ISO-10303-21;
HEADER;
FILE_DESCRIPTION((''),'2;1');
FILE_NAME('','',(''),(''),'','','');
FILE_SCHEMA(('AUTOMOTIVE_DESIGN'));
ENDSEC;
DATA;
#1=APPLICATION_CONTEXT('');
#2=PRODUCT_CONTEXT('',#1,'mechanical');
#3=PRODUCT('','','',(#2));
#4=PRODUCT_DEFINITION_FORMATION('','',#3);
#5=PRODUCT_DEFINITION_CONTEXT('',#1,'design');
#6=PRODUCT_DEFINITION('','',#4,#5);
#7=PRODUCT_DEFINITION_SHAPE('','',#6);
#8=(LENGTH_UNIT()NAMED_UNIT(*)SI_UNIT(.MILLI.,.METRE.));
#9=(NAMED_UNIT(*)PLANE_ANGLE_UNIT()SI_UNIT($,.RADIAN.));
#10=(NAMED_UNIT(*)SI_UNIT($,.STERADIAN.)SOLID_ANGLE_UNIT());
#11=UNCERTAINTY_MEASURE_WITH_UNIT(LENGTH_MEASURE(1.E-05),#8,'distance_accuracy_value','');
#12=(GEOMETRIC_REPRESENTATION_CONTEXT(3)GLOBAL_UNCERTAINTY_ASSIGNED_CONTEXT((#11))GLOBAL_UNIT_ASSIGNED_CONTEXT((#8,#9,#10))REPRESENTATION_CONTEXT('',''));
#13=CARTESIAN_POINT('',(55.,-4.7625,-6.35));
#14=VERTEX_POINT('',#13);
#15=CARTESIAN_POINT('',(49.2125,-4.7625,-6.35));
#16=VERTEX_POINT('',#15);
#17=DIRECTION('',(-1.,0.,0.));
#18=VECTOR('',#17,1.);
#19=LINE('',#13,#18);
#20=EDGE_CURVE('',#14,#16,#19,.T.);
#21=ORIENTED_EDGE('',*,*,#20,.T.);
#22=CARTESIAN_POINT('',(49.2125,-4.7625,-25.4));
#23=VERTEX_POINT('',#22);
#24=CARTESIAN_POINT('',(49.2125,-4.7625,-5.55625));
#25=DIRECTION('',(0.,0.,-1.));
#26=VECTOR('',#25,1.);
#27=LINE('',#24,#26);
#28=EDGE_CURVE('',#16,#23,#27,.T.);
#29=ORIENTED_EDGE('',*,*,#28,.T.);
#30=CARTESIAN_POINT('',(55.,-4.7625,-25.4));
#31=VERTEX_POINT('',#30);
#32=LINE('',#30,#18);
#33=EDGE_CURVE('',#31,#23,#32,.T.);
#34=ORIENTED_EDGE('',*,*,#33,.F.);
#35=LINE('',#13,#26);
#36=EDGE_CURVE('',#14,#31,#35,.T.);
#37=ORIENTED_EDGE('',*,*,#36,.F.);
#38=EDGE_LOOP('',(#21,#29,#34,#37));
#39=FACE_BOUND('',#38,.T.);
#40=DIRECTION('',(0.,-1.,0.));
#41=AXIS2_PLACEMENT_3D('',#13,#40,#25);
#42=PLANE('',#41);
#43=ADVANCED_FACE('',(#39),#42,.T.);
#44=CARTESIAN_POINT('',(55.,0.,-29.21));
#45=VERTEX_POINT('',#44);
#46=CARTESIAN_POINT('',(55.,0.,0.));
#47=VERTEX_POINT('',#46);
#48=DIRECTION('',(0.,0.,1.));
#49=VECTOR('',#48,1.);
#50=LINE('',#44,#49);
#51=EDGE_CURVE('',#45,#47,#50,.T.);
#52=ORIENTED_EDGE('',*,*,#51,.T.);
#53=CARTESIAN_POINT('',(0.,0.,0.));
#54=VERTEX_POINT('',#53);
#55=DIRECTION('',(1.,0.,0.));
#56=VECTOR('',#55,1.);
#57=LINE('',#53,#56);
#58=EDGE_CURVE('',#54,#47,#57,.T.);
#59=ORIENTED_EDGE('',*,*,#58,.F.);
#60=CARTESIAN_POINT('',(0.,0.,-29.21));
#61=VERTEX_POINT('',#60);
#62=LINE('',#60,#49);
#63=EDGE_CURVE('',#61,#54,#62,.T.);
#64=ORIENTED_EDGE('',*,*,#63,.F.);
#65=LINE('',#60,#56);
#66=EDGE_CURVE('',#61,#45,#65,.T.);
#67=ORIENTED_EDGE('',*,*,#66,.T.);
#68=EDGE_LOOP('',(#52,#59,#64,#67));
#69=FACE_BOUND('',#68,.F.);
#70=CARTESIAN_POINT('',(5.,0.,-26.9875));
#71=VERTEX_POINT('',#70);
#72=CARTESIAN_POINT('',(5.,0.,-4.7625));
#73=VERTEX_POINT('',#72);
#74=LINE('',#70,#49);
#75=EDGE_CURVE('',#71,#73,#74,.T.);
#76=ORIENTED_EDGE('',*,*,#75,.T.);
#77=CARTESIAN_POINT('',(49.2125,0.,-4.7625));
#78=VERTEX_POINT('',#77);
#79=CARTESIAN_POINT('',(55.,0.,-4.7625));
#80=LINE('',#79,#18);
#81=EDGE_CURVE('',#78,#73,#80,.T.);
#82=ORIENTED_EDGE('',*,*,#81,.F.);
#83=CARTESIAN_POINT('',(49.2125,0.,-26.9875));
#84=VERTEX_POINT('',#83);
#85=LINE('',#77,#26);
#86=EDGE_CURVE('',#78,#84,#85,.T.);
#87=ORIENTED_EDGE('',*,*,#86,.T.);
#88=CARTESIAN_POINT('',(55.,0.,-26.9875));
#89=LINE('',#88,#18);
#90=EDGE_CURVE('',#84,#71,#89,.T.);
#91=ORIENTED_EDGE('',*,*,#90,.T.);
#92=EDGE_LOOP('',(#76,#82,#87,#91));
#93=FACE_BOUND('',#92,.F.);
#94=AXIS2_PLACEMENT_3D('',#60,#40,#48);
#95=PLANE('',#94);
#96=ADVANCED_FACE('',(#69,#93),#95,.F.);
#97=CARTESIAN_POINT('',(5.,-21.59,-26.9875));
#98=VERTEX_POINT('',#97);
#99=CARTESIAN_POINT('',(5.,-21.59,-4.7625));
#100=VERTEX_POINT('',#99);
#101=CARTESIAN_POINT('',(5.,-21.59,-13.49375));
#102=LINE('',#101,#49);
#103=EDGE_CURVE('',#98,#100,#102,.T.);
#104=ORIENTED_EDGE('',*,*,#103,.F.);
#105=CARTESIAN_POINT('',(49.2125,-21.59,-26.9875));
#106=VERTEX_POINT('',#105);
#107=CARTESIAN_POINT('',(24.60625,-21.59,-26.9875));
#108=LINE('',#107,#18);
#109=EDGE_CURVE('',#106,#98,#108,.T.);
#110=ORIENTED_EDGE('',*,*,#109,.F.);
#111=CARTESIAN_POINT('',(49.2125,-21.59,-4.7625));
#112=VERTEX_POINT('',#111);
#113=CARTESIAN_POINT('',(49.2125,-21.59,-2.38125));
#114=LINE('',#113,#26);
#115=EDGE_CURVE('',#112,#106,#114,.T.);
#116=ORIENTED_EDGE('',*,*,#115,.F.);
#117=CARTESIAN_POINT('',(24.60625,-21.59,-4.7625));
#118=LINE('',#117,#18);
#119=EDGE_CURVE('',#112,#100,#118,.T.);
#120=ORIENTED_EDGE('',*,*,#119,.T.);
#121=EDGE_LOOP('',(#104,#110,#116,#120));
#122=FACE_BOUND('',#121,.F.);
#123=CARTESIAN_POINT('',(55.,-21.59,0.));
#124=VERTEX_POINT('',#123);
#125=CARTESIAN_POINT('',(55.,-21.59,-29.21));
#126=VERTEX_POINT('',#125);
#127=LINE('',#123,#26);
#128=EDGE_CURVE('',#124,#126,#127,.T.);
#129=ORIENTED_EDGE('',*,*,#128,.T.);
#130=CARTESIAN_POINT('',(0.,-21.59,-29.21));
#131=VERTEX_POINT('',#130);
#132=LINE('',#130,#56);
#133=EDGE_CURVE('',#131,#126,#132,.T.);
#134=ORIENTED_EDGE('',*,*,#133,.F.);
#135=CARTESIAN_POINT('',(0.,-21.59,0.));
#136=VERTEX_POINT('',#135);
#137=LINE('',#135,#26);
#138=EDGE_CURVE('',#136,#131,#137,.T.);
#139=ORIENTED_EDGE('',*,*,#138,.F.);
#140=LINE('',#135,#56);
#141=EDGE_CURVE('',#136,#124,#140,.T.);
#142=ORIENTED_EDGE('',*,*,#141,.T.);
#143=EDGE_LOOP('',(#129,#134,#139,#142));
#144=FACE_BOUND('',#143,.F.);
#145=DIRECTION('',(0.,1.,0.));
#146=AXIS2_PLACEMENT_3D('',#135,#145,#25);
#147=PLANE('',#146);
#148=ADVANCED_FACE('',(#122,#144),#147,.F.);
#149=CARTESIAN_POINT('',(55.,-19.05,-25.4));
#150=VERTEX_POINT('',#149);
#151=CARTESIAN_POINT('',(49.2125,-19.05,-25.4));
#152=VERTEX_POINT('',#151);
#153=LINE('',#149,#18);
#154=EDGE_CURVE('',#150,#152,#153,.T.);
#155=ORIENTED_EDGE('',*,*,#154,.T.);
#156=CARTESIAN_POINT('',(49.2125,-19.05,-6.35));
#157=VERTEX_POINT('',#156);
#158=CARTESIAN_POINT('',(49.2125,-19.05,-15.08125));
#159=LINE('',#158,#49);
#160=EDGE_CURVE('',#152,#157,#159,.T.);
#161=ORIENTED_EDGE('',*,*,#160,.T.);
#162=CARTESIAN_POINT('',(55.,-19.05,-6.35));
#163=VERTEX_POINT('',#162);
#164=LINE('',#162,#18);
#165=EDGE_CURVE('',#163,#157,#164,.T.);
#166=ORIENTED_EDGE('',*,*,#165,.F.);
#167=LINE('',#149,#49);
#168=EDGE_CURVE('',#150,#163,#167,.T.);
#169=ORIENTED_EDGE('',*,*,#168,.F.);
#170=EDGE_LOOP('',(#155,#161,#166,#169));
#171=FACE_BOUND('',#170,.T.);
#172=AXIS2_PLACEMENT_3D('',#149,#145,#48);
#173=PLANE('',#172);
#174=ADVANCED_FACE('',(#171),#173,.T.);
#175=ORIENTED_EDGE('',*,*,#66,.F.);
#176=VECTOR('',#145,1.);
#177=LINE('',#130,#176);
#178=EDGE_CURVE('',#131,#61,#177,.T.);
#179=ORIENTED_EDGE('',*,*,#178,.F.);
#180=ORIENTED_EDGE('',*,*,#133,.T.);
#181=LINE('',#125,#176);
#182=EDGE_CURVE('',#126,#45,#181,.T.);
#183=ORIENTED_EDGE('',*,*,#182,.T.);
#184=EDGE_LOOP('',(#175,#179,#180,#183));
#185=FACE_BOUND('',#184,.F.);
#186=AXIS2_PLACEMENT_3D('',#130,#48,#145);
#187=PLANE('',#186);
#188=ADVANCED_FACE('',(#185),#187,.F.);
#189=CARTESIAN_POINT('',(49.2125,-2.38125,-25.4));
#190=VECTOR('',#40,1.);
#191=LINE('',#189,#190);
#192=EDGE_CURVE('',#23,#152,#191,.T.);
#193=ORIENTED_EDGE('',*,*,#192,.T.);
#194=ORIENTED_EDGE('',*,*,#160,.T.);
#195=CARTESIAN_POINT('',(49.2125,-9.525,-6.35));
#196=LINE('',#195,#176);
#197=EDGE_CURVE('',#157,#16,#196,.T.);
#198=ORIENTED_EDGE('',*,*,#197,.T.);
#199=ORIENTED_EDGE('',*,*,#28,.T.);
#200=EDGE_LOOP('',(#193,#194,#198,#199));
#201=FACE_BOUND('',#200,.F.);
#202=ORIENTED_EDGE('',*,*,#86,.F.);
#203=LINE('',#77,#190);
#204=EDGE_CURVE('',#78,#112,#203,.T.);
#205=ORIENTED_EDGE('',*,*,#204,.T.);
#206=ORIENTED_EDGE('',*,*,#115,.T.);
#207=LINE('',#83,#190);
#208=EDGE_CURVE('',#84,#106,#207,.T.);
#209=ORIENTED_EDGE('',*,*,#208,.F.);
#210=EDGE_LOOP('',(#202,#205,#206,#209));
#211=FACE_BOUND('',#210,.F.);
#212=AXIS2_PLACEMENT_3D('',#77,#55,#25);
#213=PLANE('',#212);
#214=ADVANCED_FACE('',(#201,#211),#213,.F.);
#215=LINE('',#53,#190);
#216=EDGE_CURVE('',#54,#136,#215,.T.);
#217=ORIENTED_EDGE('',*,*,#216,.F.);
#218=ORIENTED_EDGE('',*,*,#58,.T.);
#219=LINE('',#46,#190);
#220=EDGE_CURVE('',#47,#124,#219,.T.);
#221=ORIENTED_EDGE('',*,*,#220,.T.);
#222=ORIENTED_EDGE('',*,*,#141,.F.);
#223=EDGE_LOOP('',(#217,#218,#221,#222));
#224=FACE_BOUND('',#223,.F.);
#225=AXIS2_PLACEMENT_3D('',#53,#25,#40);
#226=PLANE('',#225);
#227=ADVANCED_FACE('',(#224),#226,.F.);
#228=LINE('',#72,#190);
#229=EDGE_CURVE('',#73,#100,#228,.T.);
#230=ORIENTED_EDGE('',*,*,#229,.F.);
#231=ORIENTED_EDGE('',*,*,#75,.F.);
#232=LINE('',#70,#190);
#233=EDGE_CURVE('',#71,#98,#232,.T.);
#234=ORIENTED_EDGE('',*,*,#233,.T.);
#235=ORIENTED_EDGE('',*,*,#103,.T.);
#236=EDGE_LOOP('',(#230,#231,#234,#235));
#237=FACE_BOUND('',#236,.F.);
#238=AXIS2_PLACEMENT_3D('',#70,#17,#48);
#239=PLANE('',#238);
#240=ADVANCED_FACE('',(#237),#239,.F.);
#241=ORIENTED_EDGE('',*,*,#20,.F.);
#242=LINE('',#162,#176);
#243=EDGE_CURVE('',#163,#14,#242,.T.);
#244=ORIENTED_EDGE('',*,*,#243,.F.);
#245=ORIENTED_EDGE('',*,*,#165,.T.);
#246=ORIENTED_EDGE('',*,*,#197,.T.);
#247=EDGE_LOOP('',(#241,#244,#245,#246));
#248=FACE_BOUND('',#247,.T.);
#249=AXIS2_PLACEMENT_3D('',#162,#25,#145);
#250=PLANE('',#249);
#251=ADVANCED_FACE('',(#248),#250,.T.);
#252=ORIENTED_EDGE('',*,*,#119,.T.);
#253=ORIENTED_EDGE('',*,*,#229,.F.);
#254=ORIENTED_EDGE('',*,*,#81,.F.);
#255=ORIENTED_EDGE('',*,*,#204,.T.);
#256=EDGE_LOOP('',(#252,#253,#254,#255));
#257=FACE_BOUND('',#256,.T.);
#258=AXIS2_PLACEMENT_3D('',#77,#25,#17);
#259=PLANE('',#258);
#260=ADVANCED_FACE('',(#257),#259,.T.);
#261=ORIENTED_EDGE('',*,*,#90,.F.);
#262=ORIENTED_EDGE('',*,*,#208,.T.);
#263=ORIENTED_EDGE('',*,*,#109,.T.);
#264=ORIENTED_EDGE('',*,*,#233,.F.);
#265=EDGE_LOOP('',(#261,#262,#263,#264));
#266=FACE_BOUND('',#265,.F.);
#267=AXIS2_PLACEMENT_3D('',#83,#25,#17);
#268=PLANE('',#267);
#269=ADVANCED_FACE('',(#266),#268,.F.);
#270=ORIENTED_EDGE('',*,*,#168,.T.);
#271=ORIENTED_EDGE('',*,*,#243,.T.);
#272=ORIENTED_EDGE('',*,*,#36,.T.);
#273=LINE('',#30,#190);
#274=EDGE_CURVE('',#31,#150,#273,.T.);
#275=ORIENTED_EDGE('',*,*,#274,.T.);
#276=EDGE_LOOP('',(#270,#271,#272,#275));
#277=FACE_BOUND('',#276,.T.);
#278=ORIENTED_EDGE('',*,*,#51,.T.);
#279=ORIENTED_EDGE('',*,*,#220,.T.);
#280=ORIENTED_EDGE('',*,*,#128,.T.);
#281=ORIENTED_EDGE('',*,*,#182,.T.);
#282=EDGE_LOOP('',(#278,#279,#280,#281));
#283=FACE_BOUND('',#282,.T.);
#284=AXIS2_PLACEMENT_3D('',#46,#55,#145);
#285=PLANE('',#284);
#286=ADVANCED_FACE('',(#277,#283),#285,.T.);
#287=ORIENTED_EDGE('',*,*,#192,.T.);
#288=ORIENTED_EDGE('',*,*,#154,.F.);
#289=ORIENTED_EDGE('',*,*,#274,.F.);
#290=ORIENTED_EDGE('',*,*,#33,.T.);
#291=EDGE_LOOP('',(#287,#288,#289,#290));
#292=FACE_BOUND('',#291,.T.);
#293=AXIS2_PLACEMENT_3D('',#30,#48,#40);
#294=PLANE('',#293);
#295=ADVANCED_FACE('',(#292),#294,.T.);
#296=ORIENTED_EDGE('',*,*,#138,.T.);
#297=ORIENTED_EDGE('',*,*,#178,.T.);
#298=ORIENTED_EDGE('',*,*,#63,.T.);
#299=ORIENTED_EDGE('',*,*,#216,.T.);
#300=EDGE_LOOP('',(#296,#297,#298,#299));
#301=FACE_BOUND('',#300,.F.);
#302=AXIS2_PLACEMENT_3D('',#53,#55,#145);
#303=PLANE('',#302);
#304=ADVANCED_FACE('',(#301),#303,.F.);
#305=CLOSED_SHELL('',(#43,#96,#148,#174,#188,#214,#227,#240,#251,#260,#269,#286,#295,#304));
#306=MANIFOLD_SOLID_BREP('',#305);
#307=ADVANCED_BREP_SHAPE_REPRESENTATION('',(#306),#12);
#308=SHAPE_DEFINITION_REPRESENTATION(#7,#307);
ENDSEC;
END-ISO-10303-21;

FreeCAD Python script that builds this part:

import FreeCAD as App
import Part
import Sketcher
from FreeCAD import Vector
Q = App.Units.Quantity

doc = App.newDocument("Part")
params = doc.addObject("Spreadsheet::Sheet", "Params")
for row, (alias, value) in enumerate([
    ("sketch1_width", "0.85 in"),
    ("sketch1_height", "1.15 in"),
    ("pad1_length", "55 mm"),
    ("sketch2_height", "0.875 in"),
    ("pocket1_length", "25 mm"),
    ("sketch3_height", "0.75 in"),
    ("sketch3_width", "0.5625 in"),
    ("pocket2_length", "25 mm"),
], start=1):
    params.set(f"A{row}", alias)
    params.set(f"B{row}", "=" + value)
    params.setAlias(f"B{row}", alias)

body = doc.addObject("PartDesign::Body", "Body")

sketch1 = body.newObject("Sketcher::SketchObject", "Sketch")
sketch1.AttachmentSupport = (doc.getObject("YZ_Plane"), [""])
sketch1.MapMode = "FlatFace"
sketch1.addGeometry([
    Part.LineSegment(Vector(0, -29, 0), Vector(0, 0, 0)),
    Part.LineSegment(Vector(0, 0, 0), Vector(-22, 0, 0)),
    Part.LineSegment(Vector(-22, 0, 0), Vector(-22, -29, 0)),
    Part.LineSegment(Vector(-22, -29, 0), Vector(0, -29, 0)),
], False)
sketch1.addConstraint([
    Sketcher.Constraint("Coincident", 0, 2, 1, 1),
    Sketcher.Constraint("Coincident", 1, 2, 2, 1),
    Sketcher.Constraint("Coincident", 2, 2, 3, 1),
    Sketcher.Constraint("Coincident", 3, 2, 0, 1),
    Sketcher.Constraint("Vertical", 0),
    Sketcher.Constraint("Horizontal", 1),
    Sketcher.Constraint("Vertical", 2),
    Sketcher.Constraint("Horizontal", 3),
    Sketcher.Constraint("Coincident", 0, 2, -1, 1),
    Sketcher.Constraint("DistanceX", 1, 2, 1, 1, Q("0.85 in")),
    Sketcher.Constraint("DistanceY", 0, 1, 0, 2, Q("1.15 in")),
])
sketch1.setExpression("Constraints[9]", "Params.sketch1_width")
sketch1.setExpression("Constraints[10]", "Params.sketch1_height")
pad1 = body.newObject("PartDesign::Pad", "Pad")
pad1.Profile = sketch1
pad1.setExpression("Length", "Params.pad1_length")

sketch2 = body.newObject("Sketcher::SketchObject", "Sketch001")
sketch2.AttachmentSupport = (doc.getObject("XZ_Plane"), [""])
sketch2.MapMode = "FlatFace"
sketch2.addGeometry([
    Part.LineSegment(Vector(49, -5, 0), Vector(49, -27, 0)),
    Part.LineSegment(Vector(49, -27, 0), Vector(5, -27, 0)),
    Part.LineSegment(Vector(5, -27, 0), Vector(5, -5, 0)),
    Part.LineSegment(Vector(5, -5, 0), Vector(49, -5, 0)),
], False)
sketch2.addConstraint([
    Sketcher.Constraint("Coincident", 0, 2, 1, 1),
    Sketcher.Constraint("Coincident", 1, 2, 2, 1),
    Sketcher.Constraint("Coincident", 2, 2, 3, 1),
    Sketcher.Constraint("Coincident", 3, 2, 0, 1),
    Sketcher.Constraint("Vertical", 0),
    Sketcher.Constraint("Horizontal", 1),
    Sketcher.Constraint("Vertical", 2),
    Sketcher.Constraint("Horizontal", 3),
    Sketcher.Constraint("DistanceY", 0, 2, 0, 1, Q("0.875 in")),
    Sketcher.Constraint("DistanceX", -1, 1, 0, 2, Q("1.9375 in")),
    Sketcher.Constraint("DistanceY", 0, 2, -1, 1, Q("1.0625 in")),
    Sketcher.Constraint("DistanceX", 1, 2, 1, 1, Q("44.2125 mm")),
])
sketch2.setExpression("Constraints[8]", "Params.sketch2_height")
pocket1 = body.newObject("PartDesign::Pocket", "Pocket")
pocket1.Profile = sketch2
pocket1.setExpression("Length", "Params.pocket1_length")
pocket1.Reversed = True

sketch3 = body.newObject("Sketcher::SketchObject", "Sketch002")
sketch3.AttachmentSupport = (doc.getObject("YZ_Plane"), [""])
sketch3.MapMode = "FlatFace"
sketch3.AttachmentOffset = App.Placement(Vector(0, 0, 55), App.Rotation())
sketch3.addGeometry([
    Part.LineSegment(Vector(-19, -6, 0), Vector(-19, -25, 0)),
    Part.LineSegment(Vector(-19, -25, 0), Vector(-5, -25, 0)),
    Part.LineSegment(Vector(-5, -25, 0), Vector(-5, -6, 0)),
    Part.LineSegment(Vector(-5, -6, 0), Vector(-19, -6, 0)),
], False)
sketch3.addConstraint([
    Sketcher.Constraint("Coincident", 0, 2, 1, 1),
    Sketcher.Constraint("Coincident", 1, 2, 2, 1),
    Sketcher.Constraint("Coincident", 2, 2, 3, 1),
    Sketcher.Constraint("Coincident", 3, 2, 0, 1),
    Sketcher.Constraint("Vertical", 0),
    Sketcher.Constraint("Horizontal", 1),
    Sketcher.Constraint("Vertical", 2),
    Sketcher.Constraint("Horizontal", 3),
    Sketcher.Constraint("DistanceY", 0, 2, -1, 1, Q("1 in")),
    Sketcher.Constraint("DistanceY", 0, 2, 0, 1, Q("0.75 in")),
    Sketcher.Constraint("DistanceX", 1, 1, 1, 2, Q("0.5625 in")),
    Sketcher.Constraint("DistanceX", 0, 2, -1, 1, Q("0.75 in")),
])
sketch3.setExpression("Constraints[9]", "Params.sketch3_height")
sketch3.setExpression("Constraints[10]", "Params.sketch3_width")
pocket2 = body.newObject("PartDesign::Pocket", "Pocket001")
pocket2.Profile = sketch3
pocket2.setExpression("Length", "Params.pocket2_length")

doc.recompute()
